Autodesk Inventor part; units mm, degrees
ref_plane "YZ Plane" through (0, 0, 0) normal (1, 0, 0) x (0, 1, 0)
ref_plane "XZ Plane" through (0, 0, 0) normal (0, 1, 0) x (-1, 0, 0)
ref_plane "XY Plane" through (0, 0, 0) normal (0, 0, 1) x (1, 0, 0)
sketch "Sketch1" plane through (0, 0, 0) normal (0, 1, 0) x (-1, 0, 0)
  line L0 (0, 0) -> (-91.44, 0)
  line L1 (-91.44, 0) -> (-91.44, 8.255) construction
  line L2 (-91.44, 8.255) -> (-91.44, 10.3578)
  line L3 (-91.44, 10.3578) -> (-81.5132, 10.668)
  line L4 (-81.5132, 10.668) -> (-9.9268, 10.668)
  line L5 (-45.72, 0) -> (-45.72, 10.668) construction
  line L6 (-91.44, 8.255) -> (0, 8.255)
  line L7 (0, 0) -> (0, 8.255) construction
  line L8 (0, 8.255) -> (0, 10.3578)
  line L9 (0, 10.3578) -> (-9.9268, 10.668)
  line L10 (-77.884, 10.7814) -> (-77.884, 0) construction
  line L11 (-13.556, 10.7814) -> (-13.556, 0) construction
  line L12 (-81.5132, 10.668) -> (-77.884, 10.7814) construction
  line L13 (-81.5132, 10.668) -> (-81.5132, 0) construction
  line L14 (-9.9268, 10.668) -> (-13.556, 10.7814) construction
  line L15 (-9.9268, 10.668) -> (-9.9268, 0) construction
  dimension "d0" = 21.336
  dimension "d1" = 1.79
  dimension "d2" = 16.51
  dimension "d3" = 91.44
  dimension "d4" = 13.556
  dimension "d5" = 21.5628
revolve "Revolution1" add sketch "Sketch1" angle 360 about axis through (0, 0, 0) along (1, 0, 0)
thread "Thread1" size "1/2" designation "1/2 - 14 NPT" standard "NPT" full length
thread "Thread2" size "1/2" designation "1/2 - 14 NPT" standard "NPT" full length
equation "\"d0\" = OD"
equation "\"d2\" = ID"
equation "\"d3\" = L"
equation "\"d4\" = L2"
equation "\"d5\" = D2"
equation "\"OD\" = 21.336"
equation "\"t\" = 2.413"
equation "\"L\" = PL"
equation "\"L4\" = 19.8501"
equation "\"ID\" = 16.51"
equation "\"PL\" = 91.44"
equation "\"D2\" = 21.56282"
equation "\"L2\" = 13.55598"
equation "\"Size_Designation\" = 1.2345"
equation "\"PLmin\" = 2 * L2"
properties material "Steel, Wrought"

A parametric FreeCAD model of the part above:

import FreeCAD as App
import Part
import Sketcher

V = App.Vector
Q = App.Units.Quantity

doc = App.newDocument("Part")
body = doc.addObject("PartDesign::Body", "Body")

# Sketch on XZ plane
sketch1 = doc.addObject("Sketcher::SketchObject", "Sketch")
body.addObject(sketch1)
sketch1.AttachmentSupport = (doc.XZ_Plane, [""])
sketch1.MapMode = "FlatFace"
sketch1.addGeometry([
    Part.LineSegment(V(91.44, 10.3578, 0), V(91.44, 8.255, 0)),  # 0
    Part.LineSegment(V(91.44, 8.255, 0), V(0, 8.255, 0)),  # 1
    Part.LineSegment(V(0, 8.255, 0), V(0, 10.3578, 0)),  # 2
    Part.LineSegment(V(0, 10.3578, 0), V(9.9268, 10.668, 0)),  # 3
    Part.LineSegment(V(9.9268, 10.668, 0), V(81.5132, 10.668, 0)),  # 4
    Part.LineSegment(V(81.5132, 10.668, 0), V(91.44, 10.3578, 0)),  # 5
], False)
sketch1.addConstraint([
    Sketcher.Constraint("Coincident", 0, 2, 1, 1),
    Sketcher.Constraint("Coincident", 1, 2, 2, 1),
    Sketcher.Constraint("Coincident", 2, 2, 3, 1),
    Sketcher.Constraint("Coincident", 3, 2, 4, 1),
    Sketcher.Constraint("Coincident", 4, 2, 5, 1),
    Sketcher.Constraint("Coincident", 5, 2, 0, 1),
    Sketcher.Constraint("Vertical", 0),
    Sketcher.Constraint("Horizontal", 1),
    Sketcher.Constraint("Vertical", 2),
    Sketcher.Constraint("Horizontal", 4),
    Sketcher.Constraint("PointOnObject", 1, 2, -2),
    Sketcher.Constraint("Horizontal", 2, 2, 5, 2),
    Sketcher.Constraint("Equal", 3, 5),
    Sketcher.Constraint("DistanceX", 1, 2, 1, 1, Q("3.6 in")),
    Sketcher.Constraint("Angle", 3, Q("1.7898 deg")),
    Sketcher.Constraint("DistanceY", -1, 1, 3, 2, Q("0.42 in")),
    Sketcher.Constraint("Distance", 3, Q("0.391 in")),
    Sketcher.Constraint("DistanceY", -1, 1, 0, 2, Q("0.325 in")),
])
revolution = doc.addObject("PartDesign::Revolution", "Revolution")
body.addObject(revolution)
revolution.Profile = sketch1
revolution.ReferenceAxis = (sketch1, ["H_Axis"])
revolution.Angle = 360

doc.recompute()
